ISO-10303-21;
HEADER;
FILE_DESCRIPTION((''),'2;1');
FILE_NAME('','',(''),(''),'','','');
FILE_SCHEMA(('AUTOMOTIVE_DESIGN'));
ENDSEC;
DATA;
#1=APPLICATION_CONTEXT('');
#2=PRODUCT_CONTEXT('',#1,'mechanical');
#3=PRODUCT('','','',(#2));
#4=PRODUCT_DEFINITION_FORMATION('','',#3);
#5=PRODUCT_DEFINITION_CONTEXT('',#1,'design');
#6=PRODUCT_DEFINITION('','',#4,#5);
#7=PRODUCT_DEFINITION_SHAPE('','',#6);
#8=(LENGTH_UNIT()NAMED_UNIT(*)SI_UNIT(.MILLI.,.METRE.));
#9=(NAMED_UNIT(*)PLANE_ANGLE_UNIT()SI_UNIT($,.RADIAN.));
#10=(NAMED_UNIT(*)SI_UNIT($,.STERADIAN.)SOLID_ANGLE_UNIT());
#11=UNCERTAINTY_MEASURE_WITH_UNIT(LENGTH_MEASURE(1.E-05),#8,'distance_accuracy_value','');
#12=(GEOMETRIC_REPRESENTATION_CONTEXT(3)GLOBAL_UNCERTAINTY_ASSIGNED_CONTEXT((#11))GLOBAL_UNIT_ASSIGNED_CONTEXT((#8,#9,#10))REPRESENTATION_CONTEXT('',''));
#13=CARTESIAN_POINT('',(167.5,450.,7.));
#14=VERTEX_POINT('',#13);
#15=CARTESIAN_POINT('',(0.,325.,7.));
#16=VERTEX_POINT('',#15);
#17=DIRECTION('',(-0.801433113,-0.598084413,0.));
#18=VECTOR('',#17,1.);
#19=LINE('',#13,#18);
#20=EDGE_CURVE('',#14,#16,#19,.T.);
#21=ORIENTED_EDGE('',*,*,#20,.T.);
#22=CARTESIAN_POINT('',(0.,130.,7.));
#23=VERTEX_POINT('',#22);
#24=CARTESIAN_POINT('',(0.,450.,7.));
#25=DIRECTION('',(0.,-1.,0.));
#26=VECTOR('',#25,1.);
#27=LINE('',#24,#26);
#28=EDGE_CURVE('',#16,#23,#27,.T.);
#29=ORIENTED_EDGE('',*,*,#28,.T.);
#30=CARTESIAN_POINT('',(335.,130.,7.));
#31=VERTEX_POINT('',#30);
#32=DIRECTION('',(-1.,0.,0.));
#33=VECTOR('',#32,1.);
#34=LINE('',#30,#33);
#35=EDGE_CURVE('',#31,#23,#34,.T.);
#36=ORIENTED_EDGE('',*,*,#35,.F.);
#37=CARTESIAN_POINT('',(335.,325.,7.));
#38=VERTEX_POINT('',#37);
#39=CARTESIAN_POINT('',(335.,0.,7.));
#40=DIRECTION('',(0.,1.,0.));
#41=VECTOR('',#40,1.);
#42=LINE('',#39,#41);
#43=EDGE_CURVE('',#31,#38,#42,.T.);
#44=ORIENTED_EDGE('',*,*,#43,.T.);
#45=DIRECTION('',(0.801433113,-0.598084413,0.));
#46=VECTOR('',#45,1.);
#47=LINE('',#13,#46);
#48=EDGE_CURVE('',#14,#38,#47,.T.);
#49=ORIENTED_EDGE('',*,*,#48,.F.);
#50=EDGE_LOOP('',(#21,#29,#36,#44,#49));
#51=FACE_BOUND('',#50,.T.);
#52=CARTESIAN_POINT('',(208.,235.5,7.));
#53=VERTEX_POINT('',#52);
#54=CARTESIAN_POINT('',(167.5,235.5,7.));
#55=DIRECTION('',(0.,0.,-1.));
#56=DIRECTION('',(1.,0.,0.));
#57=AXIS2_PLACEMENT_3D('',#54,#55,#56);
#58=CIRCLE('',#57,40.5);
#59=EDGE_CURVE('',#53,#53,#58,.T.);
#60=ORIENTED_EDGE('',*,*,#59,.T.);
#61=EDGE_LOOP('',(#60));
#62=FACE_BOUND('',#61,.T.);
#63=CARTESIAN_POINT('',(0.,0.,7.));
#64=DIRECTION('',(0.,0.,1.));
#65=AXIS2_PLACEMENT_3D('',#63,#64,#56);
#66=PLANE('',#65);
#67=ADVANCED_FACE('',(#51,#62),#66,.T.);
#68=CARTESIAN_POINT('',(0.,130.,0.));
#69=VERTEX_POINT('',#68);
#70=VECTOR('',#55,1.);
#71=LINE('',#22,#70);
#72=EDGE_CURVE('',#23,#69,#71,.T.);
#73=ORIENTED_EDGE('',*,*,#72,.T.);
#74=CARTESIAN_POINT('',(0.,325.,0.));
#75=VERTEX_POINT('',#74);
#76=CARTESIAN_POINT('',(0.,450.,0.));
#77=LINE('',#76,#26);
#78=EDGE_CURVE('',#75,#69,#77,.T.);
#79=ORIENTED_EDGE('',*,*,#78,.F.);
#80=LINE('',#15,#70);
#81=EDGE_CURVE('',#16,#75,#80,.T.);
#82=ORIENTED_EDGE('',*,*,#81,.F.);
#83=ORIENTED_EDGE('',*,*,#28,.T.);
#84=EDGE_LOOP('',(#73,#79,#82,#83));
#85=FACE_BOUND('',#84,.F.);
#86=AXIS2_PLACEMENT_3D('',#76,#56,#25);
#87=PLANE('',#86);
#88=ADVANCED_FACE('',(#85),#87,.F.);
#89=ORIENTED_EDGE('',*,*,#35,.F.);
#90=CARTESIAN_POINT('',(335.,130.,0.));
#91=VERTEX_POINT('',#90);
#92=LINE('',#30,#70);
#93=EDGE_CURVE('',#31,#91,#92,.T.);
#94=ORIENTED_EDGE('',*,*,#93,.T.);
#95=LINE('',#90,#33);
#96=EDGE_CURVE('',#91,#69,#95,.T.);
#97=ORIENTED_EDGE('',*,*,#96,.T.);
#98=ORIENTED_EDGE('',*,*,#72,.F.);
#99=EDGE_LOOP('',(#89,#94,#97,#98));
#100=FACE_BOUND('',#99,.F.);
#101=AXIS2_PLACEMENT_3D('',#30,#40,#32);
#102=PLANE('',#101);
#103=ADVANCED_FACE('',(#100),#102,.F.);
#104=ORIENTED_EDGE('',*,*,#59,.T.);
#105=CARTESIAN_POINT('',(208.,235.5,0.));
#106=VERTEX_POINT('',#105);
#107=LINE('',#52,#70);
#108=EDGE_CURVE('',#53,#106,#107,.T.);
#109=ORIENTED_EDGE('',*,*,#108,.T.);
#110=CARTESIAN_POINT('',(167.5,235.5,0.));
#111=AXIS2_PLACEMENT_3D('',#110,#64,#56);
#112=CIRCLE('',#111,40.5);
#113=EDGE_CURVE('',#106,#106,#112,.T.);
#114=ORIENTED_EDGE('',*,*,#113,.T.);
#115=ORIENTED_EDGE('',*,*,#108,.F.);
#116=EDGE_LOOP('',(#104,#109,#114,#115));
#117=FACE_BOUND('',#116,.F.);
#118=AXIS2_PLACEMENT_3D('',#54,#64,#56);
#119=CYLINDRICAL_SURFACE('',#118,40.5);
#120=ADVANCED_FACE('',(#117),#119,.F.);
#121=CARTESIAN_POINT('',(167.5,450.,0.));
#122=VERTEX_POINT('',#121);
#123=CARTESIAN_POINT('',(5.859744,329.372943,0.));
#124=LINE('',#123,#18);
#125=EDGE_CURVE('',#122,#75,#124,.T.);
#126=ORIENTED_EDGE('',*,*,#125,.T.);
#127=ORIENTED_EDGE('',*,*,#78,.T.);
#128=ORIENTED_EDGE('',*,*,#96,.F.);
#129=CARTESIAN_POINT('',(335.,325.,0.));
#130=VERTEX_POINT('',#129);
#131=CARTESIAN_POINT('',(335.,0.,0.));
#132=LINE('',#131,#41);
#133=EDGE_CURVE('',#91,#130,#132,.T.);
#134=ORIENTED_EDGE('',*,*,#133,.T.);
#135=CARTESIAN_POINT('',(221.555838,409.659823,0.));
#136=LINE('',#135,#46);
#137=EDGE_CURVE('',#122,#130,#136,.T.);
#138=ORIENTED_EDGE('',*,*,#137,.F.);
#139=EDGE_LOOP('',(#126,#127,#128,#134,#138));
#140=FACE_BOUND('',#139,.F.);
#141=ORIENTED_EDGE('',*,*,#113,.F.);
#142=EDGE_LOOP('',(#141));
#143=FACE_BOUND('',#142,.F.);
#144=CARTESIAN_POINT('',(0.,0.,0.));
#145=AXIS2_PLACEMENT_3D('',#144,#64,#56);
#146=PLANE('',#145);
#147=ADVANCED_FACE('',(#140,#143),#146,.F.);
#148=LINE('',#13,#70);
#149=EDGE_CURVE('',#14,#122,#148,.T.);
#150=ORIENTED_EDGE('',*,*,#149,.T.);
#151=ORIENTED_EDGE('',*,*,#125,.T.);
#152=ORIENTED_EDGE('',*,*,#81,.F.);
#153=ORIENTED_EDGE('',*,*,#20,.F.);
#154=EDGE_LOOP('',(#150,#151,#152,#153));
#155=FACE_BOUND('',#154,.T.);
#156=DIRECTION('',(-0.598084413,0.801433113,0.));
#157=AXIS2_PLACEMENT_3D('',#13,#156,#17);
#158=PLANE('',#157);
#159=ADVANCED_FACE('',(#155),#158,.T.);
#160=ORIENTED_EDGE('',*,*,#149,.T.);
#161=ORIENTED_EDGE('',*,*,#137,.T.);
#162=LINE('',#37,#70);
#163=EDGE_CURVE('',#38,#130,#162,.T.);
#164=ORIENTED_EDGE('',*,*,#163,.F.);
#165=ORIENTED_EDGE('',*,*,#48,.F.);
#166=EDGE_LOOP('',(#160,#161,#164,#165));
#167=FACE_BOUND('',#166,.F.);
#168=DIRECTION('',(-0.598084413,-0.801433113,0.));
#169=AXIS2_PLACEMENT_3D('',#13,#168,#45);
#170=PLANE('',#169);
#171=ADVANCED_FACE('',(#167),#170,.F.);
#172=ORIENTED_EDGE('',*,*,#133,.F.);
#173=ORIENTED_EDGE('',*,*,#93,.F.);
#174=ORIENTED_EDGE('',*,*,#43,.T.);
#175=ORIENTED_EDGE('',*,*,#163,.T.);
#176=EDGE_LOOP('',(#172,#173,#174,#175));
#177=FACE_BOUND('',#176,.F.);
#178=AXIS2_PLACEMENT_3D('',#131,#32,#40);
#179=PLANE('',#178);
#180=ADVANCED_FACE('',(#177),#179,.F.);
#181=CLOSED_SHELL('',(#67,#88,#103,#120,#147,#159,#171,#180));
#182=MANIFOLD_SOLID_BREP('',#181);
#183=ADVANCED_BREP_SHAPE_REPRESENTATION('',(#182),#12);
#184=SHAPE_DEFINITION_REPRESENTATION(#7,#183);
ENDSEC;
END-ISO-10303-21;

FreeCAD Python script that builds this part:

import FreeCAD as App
import Part
import Sketcher
from FreeCAD import Vector


def add_polygon(sketch, points):
    """Adds a closed chain of lines whose ends are joined by coincident constraints."""
    first, n = sketch.GeometryCount, len(points)
    for a, b in zip(points, points[1:] + points[:1]):
        sketch.addGeometry(Part.LineSegment(App.Vector(*a, 0), App.Vector(*b, 0)), False)
    for i in range(n):
        sketch.addConstraint(Sketcher.Constraint("Coincident", first + i, 2, first + (i + 1) % n, 1))

doc = App.newDocument("Part")
body = doc.addObject("PartDesign::Body", "Body")

sketch1 = body.newObject("Sketcher::SketchObject", "Sketch")
sketch1.AttachmentSupport = (doc.getObject("XY_Plane"), [""])
sketch1.MapMode = "FlatFace"
add_polygon(sketch1, [(0, 450), (0, 0), (335, 0), (335, 450)])
sketch1.addConstraint([
    Sketcher.Constraint("Vertical", 0),
    Sketcher.Constraint("Horizontal", 1),
    Sketcher.Constraint("Vertical", 2),
    Sketcher.Constraint("Horizontal", 3),
    Sketcher.Constraint("Coincident", 0, 2, -1, 1),
    Sketcher.Constraint("DistanceX", 1, 1, 1, 2, 335.0),
    Sketcher.Constraint("DistanceY", 0, 2, 0, 1, 450.0),
])
pad1 = body.newObject("PartDesign::Pad", "Pad")
pad1.Profile = sketch1
pad1.Length = 7

sketch2 = body.newObject("Sketcher::SketchObject", "Sketch001")
sketch2.AttachmentSupport = (doc.getObject("XY_Plane"), [""])
sketch2.MapMode = "FlatFace"
sketch2.AttachmentOffset = App.Placement(Vector(0, 0, 7), App.Rotation())
add_polygon(sketch2, [(0, 450), (0, 325), (168, 450)])
sketch2.addConstraint([
    Sketcher.Constraint("Vertical", 0),
    Sketcher.Constraint("Horizontal", 2),
    Sketcher.Constraint("PointOnObject", 0, 2, -2),
    Sketcher.Constraint("DistanceX", 2, 2, 2, 1, 167.5),
    Sketcher.Constraint("DistanceY", -1, 1, 0, 2, 325.0),
    Sketcher.Constraint("DistanceY", 0, 2, 0, 1, 125.0),
])
pocket1 = body.newObject("PartDesign::Pocket", "Pocket")
pocket1.Profile = sketch2
pocket1.Length = 166.0375

sketch3 = body.newObject("Sketcher::SketchObject", "Sketch002")
sketch3.AttachmentSupport = (doc.getObject("XY_Plane"), [""])
sketch3.MapMode = "FlatFace"
sketch3.AttachmentOffset = App.Placement(Vector(0, 0, 7), App.Rotation())
add_polygon(sketch3, [(335, 450), (168, 450), (335, 325)])
sketch3.addConstraint([
    Sketcher.Constraint("Horizontal", 0),
    Sketcher.Constraint("Vertical", 2),
    Sketcher.Constraint("DistanceY", -1, 1, 1, 2, 325.0),
    Sketcher.Constraint("DistanceY", 2, 1, 2, 2, 125.0),
    Sketcher.Constraint("DistanceX", 0, 2, 0, 1, 167.5),
    Sketcher.Constraint("DistanceX", -1, 1, 1, 2, 335.0),
])
pocket2 = body.newObject("PartDesign::Pocket", "Pocket001")
pocket2.Profile = sketch3
pocket2.Length = 305.45

sketch4 = body.newObject("Sketcher::SketchObject", "Sketch003")
sketch4.AttachmentSupport = (doc.getObject("XY_Plane"), [""])
sketch4.MapMode = "FlatFace"
sketch4.AttachmentOffset = App.Placement(Vector(0, 0, 7), App.Rotation())
add_polygon(sketch4, [(128, 0), (208, 0), (208, 130), (128, 130)])
sketch4.addConstraint([
    Sketcher.Constraint("Horizontal", 0),
    Sketcher.Constraint("Vertical", 1),
    Sketcher.Constraint("Horizontal", 2),
    Sketcher.Constraint("Vertical", 3),
    Sketcher.Constraint("PointOnObject", 0, 2, -1),
    Sketcher.Constraint("DistanceX", 0, 1, 0, 2, 80.0),
    Sketcher.Constraint("DistanceY", 1, 1, 1, 2, 130.0),
    Sketcher.Constraint("DistanceX", -1, 1, 0, 2, 207.5),
])
pocket3 = body.newObject("PartDesign::Pocket", "Pocket002")
pocket3.Profile = sketch4
pocket3.Length = 10

sketch5 = body.newObject("Sketcher::SketchObject", "Sketch004")
sketch5.AttachmentSupport = (doc.getObject("XY_Plane"), [""])
sketch5.MapMode = "FlatFace"
sketch5.AttachmentOffset = App.Placement(Vector(0, 0, 7), App.Rotation())
sketch5.addGeometry(Part.Circle(Vector(168, 236, 0), Vector(0, 0, 1), 40), False)
sketch5.addConstraint([
    Sketcher.Constraint("Diameter", 0, 81.0),
    Sketcher.Constraint("DistanceX", -1, 1, 0, 3, 167.5),
    Sketcher.Constraint("DistanceY", -1, 1, 0, 3, 235.5),
])
pocket4 = body.newObject("PartDesign::Pocket", "Pocket003")
pocket4.Profile = sketch5
pocket4.Length = 10

sketch6 = body.newObject("Sketcher::SketchObject", "Sketch005")
sketch6.AttachmentSupport = (doc.getObject("XY_Plane"), [""])
sketch6.MapMode = "FlatFace"
sketch6.AttachmentOffset = App.Placement(Vector(0, 0, 7), App.Rotation())
add_polygon(sketch6, [(0, 130), (0, 0), (335, 0), (335, 130)])
sketch6.addConstraint([
    Sketcher.Constraint("Vertical", 0),
    Sketcher.Constraint("Horizontal", 1),
    Sketcher.Constraint("Vertical", 2),
    Sketcher.Constraint("Horizontal", 3),
    Sketcher.Constraint("Coincident", 0, 2, -1, 1),
    Sketcher.Constraint("DistanceX", 1, 1, 1, 2, 335.0),
    Sketcher.Constraint("DistanceY", 0, 2, 0, 1, 130.0),
])
pocket5 = body.newObject("PartDesign::Pocket", "Pocket004")
pocket5.Profile = sketch6
pocket5.Length = 10

doc.recompute()
